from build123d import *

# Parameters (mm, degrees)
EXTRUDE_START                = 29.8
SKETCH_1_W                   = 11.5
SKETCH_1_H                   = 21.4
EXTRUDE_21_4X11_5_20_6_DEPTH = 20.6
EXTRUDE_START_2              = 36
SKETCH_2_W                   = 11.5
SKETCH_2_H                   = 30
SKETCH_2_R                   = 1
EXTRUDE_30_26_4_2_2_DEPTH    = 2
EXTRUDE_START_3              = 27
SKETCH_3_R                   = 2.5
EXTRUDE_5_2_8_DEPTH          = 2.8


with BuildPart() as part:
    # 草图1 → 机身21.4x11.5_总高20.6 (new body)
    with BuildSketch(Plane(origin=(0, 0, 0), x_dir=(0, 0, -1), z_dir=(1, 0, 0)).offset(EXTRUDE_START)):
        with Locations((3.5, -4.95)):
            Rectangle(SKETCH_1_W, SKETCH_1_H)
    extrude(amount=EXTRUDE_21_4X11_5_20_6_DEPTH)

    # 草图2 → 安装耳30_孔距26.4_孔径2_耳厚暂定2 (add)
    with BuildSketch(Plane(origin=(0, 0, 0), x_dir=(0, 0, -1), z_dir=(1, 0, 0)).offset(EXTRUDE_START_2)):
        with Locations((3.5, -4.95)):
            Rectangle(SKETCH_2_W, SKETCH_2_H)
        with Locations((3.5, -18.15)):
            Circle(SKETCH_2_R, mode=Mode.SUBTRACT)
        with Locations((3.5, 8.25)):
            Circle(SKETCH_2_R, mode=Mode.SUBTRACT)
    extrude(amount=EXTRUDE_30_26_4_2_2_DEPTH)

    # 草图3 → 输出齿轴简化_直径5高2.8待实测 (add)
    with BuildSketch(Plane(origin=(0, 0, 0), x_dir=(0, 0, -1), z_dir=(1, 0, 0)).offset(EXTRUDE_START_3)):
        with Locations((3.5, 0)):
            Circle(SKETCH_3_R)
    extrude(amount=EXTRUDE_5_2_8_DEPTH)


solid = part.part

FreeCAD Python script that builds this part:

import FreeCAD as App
import Part
import Sketcher
Q = App.Units.Quantity

doc = App.newDocument("Part")
body = doc.addObject("PartDesign::Body", "Body")

# Sketch on YZ plane
sketch1 = body.newObject("Sketcher::SketchObject", "Sketch")
sketch1.AttachmentSupport = (doc.getObject("YZ_Plane"), [""])
sketch1.MapMode = "FlatFace"
sketch1.AttachmentOffset = App.Placement(App.Vector(0, 0, 29.8), App.Rotation())
sketch1.addGeometry([
    Part.LineSegment(App.Vector(5.75, 2.25, 0), App.Vector(-15.65, 2.25, 0)),
    Part.LineSegment(App.Vector(-15.65, 2.25, 0), App.Vector(-15.65, -9.25, 0)),
    Part.LineSegment(App.Vector(-15.65, -9.25, 0), App.Vector(5.75, -9.25, 0)),
    Part.LineSegment(App.Vector(5.75, -9.25, 0), App.Vector(5.75, 2.25, 0)),
], False)
sketch1.addConstraint([
    Sketcher.Constraint("Coincident", 0, 2, 1, 1),
    Sketcher.Constraint("Coincident", 1, 2, 2, 1),
    Sketcher.Constraint("Coincident", 2, 2, 3, 1),
    Sketcher.Constraint("Coincident", 3, 2, 0, 1),
    Sketcher.Constraint("Horizontal", 0),
    Sketcher.Constraint("Vertical", 1),
    Sketcher.Constraint("Horizontal", 2),
    Sketcher.Constraint("Vertical", 3),
    Sketcher.Constraint("DistanceX", 0, 2, 0, 1, Q("21.4 mm")),
    Sketcher.Constraint("DistanceY", 1, 2, 1, 1, Q("11.5 mm")),
    Sketcher.Constraint("DistanceX", 0, 2, -1, 1, Q("15.65 mm")),
    Sketcher.Constraint("DistanceY", -1, 1, 0, 2, Q("2.25 mm")),
])
pad1 = body.newObject("PartDesign::Pad", "Pad")
pad1.Profile = sketch1
pad1.Length = 20.6

# Sketch on YZ plane
sketch2 = body.newObject("Sketcher::SketchObject", "Sketch001")
sketch2.AttachmentSupport = (doc.getObject("YZ_Plane"), [""])
sketch2.MapMode = "FlatFace"
sketch2.AttachmentOffset = App.Placement(App.Vector(0, 0, 36), App.Rotation())
sketch2.addGeometry([
    Part.LineSegment(App.Vector(10.05, 2.25, 0), App.Vector(-19.95, 2.25, 0)),  # 0
    Part.LineSegment(App.Vector(-19.95, 2.25, 0), App.Vector(-19.95, -9.25, 0)),  # 1
    Part.LineSegment(App.Vector(-19.95, -9.25, 0), App.Vector(10.05, -9.25, 0)),  # 2
    Part.LineSegment(App.Vector(10.05, -9.25, 0), App.Vector(10.05, 2.25, 0)),  # 3
    Part.Circle(App.Vector(-18.15, -3.5, 0), App.Vector(0, 0, 1), 1),  # 4
    Part.Circle(App.Vector(8.25, -3.5, 0), App.Vector(0, 0, 1), 1),  # 5
], False)
sketch2.addConstraint([
    Sketcher.Constraint("Coincident", 0, 2, 1, 1),
    Sketcher.Constraint("Coincident", 1, 2, 2, 1),
    Sketcher.Constraint("Coincident", 2, 2, 3, 1),
    Sketcher.Constraint("Coincident", 3, 2, 0, 1),
    Sketcher.Constraint("Horizontal", 0),
    Sketcher.Constraint("Vertical", 1),
    Sketcher.Constraint("Horizontal", 2),
    Sketcher.Constraint("Vertical", 3),
    Sketcher.Constraint("Equal", 4, 5),
    Sketcher.Constraint("Horizontal", 4, 3, 5, 3),
    Sketcher.Constraint("Diameter", 4, Q("2 mm")),
    Sketcher.Constraint("DistanceX", 0, 2, 0, 1, Q("30 mm")),
    Sketcher.Constraint("DistanceY", 1, 2, 1, 1, Q("11.5 mm")),
    Sketcher.Constraint("DistanceY", 4, 3, -1, 1, Q("3.5 mm")),
    Sketcher.Constraint("DistanceX", 4, 3, 5, 3, Q("26.4 mm")),
    Sketcher.Constraint("DistanceX", 0, 2, 4, 3, Q("1.8 mm")),
    Sketcher.Constraint("DistanceX", 4, 3, -1, 1, Q("18.15 mm")),
    Sketcher.Constraint("DistanceY", -1, 1, 0, 2, Q("2.25 mm")),
])
pad2 = body.newObject("PartDesign::Pad", "Pad001")
pad2.Profile = sketch2
pad2.Length = 2

# Sketch on YZ plane
sketch3 = body.newObject("Sketcher::SketchObject", "Sketch002")
sketch3.AttachmentSupport = (doc.getObject("YZ_Plane"), [""])
sketch3.MapMode = "FlatFace"
sketch3.AttachmentOffset = App.Placement(App.Vector(0, 0, 27), App.Rotation())
sketch3.addGeometry(Part.Circle(App.Vector(0, -3.5, 0), App.Vector(0, 0, 1), 2.5), False)
sketch3.addConstraint([
    Sketcher.Constraint("PointOnObject", 0, 3, -2),
    Sketcher.Constraint("Diameter", 0, Q("5 mm")),
    Sketcher.Constraint("DistanceY", 0, 3, -1, 1, Q("3.5 mm")),
])
pad3 = body.newObject("PartDesign::Pad", "Pad002")
pad3.Profile = sketch3
pad3.Length = 2.8

doc.recompute()
